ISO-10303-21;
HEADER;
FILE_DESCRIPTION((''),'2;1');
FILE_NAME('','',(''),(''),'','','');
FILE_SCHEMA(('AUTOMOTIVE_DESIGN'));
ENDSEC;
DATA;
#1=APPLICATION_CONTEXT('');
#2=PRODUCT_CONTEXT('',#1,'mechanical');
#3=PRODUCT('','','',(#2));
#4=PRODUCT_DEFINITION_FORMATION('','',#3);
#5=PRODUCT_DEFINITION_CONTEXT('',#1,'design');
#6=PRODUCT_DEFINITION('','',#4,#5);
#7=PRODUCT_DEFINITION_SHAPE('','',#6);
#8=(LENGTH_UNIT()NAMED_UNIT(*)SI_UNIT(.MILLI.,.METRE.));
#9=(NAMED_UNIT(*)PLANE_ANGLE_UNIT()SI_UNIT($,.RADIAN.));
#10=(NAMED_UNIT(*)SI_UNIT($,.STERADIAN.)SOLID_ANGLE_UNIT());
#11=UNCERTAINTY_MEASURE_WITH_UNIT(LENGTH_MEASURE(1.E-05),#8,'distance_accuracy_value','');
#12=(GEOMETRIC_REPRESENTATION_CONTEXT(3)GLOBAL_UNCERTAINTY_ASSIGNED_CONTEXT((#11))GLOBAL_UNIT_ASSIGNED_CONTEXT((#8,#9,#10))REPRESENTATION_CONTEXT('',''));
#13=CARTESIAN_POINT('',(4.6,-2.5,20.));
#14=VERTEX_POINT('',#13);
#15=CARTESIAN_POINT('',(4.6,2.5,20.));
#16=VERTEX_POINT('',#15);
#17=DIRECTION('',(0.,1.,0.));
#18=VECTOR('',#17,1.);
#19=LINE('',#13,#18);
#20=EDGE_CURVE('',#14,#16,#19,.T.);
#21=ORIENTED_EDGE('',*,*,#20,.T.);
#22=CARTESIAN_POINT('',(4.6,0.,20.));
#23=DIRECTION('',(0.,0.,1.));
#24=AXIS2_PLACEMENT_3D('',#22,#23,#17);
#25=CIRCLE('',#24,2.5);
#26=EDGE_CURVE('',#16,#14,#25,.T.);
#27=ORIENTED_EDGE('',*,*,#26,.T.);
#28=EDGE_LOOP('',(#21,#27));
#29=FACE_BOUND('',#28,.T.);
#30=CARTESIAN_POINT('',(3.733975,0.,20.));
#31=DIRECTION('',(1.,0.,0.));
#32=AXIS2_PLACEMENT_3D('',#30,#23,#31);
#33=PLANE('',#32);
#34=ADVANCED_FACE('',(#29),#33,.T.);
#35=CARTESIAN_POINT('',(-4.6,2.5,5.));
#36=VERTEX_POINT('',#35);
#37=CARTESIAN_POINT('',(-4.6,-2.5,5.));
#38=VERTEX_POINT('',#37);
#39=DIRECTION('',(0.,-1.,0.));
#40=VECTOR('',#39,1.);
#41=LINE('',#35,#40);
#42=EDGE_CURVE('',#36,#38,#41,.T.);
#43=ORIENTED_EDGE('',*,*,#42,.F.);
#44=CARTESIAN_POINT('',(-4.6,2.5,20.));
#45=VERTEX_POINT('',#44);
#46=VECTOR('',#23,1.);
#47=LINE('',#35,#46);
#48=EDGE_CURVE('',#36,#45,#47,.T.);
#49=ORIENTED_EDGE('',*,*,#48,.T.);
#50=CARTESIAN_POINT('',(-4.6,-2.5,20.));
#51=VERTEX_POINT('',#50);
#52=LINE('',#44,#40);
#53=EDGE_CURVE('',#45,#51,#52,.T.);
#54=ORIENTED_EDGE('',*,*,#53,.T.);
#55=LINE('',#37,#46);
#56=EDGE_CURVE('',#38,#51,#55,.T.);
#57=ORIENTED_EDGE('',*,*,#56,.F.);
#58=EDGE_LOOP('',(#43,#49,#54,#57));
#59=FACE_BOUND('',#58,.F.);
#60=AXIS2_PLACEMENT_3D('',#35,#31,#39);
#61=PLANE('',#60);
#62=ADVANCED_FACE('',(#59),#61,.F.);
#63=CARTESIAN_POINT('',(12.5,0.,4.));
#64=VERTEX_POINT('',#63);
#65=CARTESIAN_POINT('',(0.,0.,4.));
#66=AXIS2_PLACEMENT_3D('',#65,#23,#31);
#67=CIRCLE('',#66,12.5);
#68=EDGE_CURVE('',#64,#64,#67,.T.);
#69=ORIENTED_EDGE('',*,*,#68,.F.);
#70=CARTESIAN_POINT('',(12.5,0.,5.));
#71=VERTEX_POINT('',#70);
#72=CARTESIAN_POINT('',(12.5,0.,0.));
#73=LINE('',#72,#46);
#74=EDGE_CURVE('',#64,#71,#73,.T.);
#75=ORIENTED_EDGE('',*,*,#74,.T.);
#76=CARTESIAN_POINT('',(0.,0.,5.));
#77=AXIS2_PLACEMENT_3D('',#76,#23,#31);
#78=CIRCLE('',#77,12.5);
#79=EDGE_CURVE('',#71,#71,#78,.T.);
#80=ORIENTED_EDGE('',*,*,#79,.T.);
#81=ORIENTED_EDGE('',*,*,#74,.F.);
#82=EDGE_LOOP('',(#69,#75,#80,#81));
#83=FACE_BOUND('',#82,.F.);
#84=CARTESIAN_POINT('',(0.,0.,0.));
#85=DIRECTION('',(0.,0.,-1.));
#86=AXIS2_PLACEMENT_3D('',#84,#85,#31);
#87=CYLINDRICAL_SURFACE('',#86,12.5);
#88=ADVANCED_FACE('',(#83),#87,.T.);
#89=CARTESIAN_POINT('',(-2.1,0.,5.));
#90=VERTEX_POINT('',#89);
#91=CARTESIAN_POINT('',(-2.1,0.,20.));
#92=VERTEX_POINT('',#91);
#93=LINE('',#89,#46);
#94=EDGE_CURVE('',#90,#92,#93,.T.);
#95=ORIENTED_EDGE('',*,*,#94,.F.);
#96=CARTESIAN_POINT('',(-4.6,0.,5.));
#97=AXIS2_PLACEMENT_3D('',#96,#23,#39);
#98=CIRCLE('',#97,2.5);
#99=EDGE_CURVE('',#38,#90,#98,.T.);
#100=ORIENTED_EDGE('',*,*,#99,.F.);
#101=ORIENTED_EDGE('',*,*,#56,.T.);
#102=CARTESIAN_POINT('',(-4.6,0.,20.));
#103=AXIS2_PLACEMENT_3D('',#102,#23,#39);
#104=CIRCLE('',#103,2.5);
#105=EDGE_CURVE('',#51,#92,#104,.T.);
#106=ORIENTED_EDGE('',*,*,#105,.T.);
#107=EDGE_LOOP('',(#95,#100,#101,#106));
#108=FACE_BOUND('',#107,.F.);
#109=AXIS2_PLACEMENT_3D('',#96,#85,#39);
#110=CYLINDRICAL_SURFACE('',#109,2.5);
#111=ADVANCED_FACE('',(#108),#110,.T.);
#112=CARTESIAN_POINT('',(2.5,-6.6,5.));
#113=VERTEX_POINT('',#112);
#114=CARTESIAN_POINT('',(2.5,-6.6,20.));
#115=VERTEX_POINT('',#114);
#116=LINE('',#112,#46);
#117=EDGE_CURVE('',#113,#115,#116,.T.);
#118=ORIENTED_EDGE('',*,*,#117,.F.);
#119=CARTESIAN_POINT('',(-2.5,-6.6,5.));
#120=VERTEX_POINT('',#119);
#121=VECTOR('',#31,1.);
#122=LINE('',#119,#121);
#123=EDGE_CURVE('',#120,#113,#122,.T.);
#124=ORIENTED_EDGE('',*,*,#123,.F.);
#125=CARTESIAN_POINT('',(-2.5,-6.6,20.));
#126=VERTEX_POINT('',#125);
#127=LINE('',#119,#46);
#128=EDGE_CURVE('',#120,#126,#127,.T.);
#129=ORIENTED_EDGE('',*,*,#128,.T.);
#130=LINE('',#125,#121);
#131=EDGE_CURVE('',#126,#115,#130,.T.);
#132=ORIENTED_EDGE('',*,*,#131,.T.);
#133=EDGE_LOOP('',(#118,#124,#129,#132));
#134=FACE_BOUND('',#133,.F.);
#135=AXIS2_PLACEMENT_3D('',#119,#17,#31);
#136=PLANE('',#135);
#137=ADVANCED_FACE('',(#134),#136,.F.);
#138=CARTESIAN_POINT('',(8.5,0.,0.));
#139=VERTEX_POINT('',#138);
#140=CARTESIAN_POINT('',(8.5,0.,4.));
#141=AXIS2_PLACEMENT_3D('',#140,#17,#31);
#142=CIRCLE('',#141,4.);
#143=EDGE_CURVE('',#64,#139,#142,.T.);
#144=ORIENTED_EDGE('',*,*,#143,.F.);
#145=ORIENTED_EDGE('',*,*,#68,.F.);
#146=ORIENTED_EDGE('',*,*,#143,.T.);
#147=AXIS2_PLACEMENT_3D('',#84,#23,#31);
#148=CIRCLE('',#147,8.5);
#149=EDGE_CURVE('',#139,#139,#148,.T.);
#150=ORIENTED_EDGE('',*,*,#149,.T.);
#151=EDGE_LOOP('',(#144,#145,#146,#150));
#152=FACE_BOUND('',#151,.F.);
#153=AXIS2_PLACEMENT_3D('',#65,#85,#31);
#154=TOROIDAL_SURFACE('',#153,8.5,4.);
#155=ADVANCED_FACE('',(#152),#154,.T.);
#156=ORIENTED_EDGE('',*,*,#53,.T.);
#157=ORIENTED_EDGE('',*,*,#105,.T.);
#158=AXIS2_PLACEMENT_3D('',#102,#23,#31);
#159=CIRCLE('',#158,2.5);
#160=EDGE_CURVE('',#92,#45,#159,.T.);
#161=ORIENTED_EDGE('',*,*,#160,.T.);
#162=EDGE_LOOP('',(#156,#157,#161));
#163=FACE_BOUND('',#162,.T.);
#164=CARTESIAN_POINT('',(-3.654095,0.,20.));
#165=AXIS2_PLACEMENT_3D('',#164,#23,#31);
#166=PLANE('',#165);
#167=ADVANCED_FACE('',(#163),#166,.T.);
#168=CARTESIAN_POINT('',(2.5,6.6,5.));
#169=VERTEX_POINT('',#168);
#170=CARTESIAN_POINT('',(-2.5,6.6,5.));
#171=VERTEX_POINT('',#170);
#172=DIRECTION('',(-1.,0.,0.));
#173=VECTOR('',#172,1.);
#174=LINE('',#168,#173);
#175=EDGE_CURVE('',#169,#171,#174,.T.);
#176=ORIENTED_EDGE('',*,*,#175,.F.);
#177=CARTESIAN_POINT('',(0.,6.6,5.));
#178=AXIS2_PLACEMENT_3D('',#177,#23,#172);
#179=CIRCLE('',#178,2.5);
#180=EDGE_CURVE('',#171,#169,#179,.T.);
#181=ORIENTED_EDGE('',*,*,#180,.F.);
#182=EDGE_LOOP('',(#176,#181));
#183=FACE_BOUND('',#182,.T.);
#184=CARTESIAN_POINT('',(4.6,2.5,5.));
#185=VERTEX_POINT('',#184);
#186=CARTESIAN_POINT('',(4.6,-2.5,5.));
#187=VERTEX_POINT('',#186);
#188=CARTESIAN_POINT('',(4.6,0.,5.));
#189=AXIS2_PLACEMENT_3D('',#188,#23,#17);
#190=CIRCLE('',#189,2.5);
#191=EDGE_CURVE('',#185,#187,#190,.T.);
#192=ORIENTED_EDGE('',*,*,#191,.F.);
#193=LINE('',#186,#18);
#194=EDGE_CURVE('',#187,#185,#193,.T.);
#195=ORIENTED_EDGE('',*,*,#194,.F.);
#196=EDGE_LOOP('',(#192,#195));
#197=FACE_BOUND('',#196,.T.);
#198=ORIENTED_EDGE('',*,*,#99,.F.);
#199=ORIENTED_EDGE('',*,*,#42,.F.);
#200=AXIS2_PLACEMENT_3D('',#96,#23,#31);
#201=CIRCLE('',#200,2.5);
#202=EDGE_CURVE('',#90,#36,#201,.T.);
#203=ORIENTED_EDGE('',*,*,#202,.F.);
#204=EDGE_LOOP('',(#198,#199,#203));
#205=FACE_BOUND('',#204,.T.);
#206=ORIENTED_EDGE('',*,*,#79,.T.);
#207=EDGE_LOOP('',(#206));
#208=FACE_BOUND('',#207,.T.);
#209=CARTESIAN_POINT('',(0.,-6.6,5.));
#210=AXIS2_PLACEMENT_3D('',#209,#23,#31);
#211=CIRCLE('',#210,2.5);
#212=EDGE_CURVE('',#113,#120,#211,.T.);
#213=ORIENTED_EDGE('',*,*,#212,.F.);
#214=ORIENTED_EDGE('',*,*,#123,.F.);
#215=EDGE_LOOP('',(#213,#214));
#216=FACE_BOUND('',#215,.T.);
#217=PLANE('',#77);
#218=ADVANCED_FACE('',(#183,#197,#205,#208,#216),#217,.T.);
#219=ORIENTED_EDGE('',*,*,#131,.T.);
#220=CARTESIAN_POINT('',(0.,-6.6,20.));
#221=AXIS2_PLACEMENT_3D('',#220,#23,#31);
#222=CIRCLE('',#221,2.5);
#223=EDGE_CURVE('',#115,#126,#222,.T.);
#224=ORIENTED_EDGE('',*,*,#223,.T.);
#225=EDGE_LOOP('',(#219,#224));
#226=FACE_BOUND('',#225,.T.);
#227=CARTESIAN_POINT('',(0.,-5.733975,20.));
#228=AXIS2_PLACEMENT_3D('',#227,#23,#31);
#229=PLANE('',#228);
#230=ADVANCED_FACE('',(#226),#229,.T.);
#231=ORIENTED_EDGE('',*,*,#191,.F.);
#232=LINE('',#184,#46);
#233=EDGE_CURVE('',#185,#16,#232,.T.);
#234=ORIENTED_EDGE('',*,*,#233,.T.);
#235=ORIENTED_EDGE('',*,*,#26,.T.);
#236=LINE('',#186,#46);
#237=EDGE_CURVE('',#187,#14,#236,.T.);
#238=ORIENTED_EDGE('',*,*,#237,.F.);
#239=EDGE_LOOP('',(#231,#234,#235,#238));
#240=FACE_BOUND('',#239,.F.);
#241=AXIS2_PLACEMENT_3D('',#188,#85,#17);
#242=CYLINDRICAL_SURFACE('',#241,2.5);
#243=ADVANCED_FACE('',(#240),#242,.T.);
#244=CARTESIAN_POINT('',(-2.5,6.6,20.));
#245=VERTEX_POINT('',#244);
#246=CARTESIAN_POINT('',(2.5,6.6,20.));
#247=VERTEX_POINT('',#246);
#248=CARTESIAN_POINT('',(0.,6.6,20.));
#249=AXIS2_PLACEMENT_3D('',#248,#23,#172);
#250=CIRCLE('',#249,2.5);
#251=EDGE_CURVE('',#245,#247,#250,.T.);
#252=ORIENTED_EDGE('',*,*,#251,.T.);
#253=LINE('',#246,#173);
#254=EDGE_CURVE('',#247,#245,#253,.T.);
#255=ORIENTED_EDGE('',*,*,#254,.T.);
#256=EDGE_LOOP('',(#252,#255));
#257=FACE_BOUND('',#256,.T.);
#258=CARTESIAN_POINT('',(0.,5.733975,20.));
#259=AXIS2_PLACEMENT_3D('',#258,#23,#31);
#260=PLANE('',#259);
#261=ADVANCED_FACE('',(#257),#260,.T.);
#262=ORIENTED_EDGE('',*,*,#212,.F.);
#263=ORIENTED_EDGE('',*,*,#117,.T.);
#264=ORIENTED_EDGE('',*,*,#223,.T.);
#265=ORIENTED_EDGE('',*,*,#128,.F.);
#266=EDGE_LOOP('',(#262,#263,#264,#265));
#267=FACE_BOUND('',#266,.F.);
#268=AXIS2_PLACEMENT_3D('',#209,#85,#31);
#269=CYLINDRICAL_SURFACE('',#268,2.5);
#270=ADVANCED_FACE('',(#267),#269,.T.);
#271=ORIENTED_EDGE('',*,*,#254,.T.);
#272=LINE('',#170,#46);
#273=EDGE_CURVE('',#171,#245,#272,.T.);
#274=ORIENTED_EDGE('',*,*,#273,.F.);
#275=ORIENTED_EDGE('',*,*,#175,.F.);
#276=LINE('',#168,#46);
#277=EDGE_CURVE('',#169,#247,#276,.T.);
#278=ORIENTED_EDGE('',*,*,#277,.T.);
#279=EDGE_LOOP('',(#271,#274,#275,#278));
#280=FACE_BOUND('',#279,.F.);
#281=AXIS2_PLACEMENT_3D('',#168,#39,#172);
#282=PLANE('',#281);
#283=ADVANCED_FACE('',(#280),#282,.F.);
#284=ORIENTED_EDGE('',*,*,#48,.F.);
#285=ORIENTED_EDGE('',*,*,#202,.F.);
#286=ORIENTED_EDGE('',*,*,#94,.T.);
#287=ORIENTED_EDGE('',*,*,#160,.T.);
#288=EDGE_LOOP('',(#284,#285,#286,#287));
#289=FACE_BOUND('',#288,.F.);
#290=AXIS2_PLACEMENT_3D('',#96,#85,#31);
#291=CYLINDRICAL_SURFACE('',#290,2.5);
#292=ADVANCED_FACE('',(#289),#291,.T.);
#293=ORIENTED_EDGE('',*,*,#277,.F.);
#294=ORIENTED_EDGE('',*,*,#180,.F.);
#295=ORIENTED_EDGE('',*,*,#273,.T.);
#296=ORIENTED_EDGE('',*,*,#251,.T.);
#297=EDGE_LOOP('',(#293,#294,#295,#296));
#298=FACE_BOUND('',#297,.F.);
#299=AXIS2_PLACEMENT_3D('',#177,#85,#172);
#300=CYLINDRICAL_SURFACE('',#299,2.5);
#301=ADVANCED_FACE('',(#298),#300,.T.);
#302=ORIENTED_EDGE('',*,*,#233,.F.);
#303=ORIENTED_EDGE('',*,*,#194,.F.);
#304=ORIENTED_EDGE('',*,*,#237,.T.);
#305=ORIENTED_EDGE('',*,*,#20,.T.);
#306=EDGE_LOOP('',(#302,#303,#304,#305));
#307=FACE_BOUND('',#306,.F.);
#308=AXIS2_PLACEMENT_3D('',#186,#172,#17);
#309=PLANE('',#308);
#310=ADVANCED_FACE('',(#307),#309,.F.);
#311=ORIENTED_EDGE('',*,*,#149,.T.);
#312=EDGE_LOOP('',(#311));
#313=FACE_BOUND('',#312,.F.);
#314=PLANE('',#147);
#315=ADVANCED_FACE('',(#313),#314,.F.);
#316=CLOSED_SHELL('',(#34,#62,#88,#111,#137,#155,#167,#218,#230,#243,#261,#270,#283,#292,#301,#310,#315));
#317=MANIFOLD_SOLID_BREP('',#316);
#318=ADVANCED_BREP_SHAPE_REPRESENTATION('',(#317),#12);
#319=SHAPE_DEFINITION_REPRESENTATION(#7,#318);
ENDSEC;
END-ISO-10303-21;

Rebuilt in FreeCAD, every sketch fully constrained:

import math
import FreeCAD as App
import Part
import Sketcher
from FreeCAD import Vector
Q = App.Units.Quantity


def edges_at(feature, points):
    """Names of the edges that pass closest to the given points."""
    edges = feature.Shape.Edges
    near = lambda p: min(range(len(edges)), key=lambda i: edges[i].distToShape(Part.Vertex(*p))[0])
    return sorted({f"Edge{near(p) + 1}" for p in points})

doc = App.newDocument("Part")
body = doc.addObject("PartDesign::Body", "Body")

sketch1 = body.newObject("Sketcher::SketchObject", "Sketch")
sketch1.AttachmentSupport = (doc.getObject("XY_Plane"), [""])
sketch1.MapMode = "FlatFace"
sketch1.addGeometry(Part.Circle(Vector(0, 0, 0), Vector(0, 0, 1), 12.5), False)
sketch1.addConstraint(Sketcher.Constraint("Coincident", 0, 3, -1, 1))
sketch1.addConstraint(Sketcher.Constraint("Diameter", 0, Q("25 mm")))
pad1 = body.newObject("PartDesign::Pad", "Pad")
pad1.Profile = sketch1
pad1.Length = 5
doc.recompute()

fillet = body.newObject("PartDesign::Fillet", "Fillet")
fillet.Base = (pad1, edges_at(pad1, [(-12.5, 0, 0)]))
fillet.Radius = 4

sketch2 = body.newObject("Sketcher::SketchObject", "Sketch001")
sketch2.AttachmentSupport = (doc.getObject("XY_Plane"), [""])
sketch2.MapMode = "FlatFace"
sketch2.AttachmentOffset = App.Placement(Vector(0, 0, 5), App.Rotation())
sketch2.addGeometry(Part.LineSegment(Vector(-2.5, -6.6, 0), Vector(2.5, -6.6, 0)), False)
sketch2.addGeometry(Part.ArcOfCircle(Part.Circle(Vector(0, -6.6, 0), Vector(0, 0, 1), 2.5), math.radians(0), math.radians(180)), False)
sketch2.addGeometry(Part.ArcOfCircle(Part.Circle(Vector(0, 6.6, 0), Vector(0, 0, 1), 2.5), math.radians(180), math.radians(360)), False)
sketch2.addGeometry(Part.LineSegment(Vector(2.5, 6.6, 0), Vector(-2.5, 6.6, 0)), False)
sketch2.addGeometry(Part.ArcOfCircle(Part.Circle(Vector(4.6, 0, 0), Vector(0, 0, 1), 2.5), math.radians(90), math.radians(270)), False)
sketch2.addGeometry(Part.LineSegment(Vector(4.6, -2.5, 0), Vector(4.6, 2.5, 0)), False)
sketch2.addGeometry(Part.LineSegment(Vector(-4.6, 2.5, 0), Vector(-4.6, -2.5, 0)), False)
sketch2.addGeometry(Part.ArcOfCircle(Part.Circle(Vector(-4.6, 0, 0), Vector(0, 0, 1), 2.5), math.radians(-90), math.radians(0)), False)
sketch2.addGeometry(Part.ArcOfCircle(Part.Circle(Vector(-4.6, 0, 0), Vector(0, 0, 1), 2.5), math.radians(0), math.radians(90)), False)
sketch2.addConstraint(Sketcher.Constraint("Coincident", 0, 1, 1, 2))
sketch2.addConstraint(Sketcher.Constraint("Coincident", 1, 1, 0, 2))
sketch2.addConstraint(Sketcher.Constraint("Coincident", 2, 1, 3, 2))
sketch2.addConstraint(Sketcher.Constraint("Coincident", 3, 1, 2, 2))
sketch2.addConstraint(Sketcher.Constraint("Coincident", 4, 1, 5, 2))
sketch2.addConstraint(Sketcher.Constraint("Coincident", 5, 1, 4, 2))
sketch2.addConstraint(Sketcher.Constraint("Coincident", 6, 2, 7, 1))
sketch2.addConstraint(Sketcher.Constraint("Tangent", 7, 2, 8, 1))
sketch2.addConstraint(Sketcher.Constraint("Coincident", 8, 2, 6, 1))
sketch2.addConstraint(Sketcher.Constraint("Horizontal", 0))
sketch2.addConstraint(Sketcher.Constraint("Horizontal", 3))
sketch2.addConstraint(Sketcher.Constraint("Vertical", 5))
sketch2.addConstraint(Sketcher.Constraint("Vertical", 6))
sketch2.addConstraint(Sketcher.Constraint("Equal", 1, 2))
sketch2.addConstraint(Sketcher.Constraint("Equal", 2, 4))
sketch2.addConstraint(Sketcher.Constraint("Equal", 4, 7))
sketch2.addConstraint(Sketcher.Constraint("Equal", 7, 8))
sketch2.addConstraint(Sketcher.Constraint("Symmetric", 1, 3, 2, 3, -1, 1))
sketch2.addConstraint(Sketcher.Constraint("Symmetric", 4, 3, 7, 3, -1, 1))
sketch2.addConstraint(Sketcher.Constraint("Symmetric", 5, 1, 6, 2, -2))
sketch2.addConstraint(Sketcher.Constraint("Symmetric", 0, 1, 2, 1, -1))
sketch2.addConstraint(Sketcher.Constraint("PointOnObject", 7, 2, -1))
sketch2.addConstraint(Sketcher.Constraint("Horizontal", 1, 3, 0, 1))
sketch2.addConstraint(Sketcher.Constraint("Vertical", 8, 3, 6, 2))
sketch2.addConstraint(Sketcher.Constraint("Radius", 1, Q("2.5 mm")))
sketch2.addConstraint(Sketcher.Constraint("DistanceY", 1, 3, -1, 1, Q("6.6 mm")))
sketch2.addConstraint(Sketcher.Constraint("DistanceX", -1, 1, 4, 3, Q("4.6 mm")))
pad2 = body.newObject("PartDesign::Pad", "Pad001")
pad2.Profile = sketch2
pad2.Length = 15

doc.recompute()
